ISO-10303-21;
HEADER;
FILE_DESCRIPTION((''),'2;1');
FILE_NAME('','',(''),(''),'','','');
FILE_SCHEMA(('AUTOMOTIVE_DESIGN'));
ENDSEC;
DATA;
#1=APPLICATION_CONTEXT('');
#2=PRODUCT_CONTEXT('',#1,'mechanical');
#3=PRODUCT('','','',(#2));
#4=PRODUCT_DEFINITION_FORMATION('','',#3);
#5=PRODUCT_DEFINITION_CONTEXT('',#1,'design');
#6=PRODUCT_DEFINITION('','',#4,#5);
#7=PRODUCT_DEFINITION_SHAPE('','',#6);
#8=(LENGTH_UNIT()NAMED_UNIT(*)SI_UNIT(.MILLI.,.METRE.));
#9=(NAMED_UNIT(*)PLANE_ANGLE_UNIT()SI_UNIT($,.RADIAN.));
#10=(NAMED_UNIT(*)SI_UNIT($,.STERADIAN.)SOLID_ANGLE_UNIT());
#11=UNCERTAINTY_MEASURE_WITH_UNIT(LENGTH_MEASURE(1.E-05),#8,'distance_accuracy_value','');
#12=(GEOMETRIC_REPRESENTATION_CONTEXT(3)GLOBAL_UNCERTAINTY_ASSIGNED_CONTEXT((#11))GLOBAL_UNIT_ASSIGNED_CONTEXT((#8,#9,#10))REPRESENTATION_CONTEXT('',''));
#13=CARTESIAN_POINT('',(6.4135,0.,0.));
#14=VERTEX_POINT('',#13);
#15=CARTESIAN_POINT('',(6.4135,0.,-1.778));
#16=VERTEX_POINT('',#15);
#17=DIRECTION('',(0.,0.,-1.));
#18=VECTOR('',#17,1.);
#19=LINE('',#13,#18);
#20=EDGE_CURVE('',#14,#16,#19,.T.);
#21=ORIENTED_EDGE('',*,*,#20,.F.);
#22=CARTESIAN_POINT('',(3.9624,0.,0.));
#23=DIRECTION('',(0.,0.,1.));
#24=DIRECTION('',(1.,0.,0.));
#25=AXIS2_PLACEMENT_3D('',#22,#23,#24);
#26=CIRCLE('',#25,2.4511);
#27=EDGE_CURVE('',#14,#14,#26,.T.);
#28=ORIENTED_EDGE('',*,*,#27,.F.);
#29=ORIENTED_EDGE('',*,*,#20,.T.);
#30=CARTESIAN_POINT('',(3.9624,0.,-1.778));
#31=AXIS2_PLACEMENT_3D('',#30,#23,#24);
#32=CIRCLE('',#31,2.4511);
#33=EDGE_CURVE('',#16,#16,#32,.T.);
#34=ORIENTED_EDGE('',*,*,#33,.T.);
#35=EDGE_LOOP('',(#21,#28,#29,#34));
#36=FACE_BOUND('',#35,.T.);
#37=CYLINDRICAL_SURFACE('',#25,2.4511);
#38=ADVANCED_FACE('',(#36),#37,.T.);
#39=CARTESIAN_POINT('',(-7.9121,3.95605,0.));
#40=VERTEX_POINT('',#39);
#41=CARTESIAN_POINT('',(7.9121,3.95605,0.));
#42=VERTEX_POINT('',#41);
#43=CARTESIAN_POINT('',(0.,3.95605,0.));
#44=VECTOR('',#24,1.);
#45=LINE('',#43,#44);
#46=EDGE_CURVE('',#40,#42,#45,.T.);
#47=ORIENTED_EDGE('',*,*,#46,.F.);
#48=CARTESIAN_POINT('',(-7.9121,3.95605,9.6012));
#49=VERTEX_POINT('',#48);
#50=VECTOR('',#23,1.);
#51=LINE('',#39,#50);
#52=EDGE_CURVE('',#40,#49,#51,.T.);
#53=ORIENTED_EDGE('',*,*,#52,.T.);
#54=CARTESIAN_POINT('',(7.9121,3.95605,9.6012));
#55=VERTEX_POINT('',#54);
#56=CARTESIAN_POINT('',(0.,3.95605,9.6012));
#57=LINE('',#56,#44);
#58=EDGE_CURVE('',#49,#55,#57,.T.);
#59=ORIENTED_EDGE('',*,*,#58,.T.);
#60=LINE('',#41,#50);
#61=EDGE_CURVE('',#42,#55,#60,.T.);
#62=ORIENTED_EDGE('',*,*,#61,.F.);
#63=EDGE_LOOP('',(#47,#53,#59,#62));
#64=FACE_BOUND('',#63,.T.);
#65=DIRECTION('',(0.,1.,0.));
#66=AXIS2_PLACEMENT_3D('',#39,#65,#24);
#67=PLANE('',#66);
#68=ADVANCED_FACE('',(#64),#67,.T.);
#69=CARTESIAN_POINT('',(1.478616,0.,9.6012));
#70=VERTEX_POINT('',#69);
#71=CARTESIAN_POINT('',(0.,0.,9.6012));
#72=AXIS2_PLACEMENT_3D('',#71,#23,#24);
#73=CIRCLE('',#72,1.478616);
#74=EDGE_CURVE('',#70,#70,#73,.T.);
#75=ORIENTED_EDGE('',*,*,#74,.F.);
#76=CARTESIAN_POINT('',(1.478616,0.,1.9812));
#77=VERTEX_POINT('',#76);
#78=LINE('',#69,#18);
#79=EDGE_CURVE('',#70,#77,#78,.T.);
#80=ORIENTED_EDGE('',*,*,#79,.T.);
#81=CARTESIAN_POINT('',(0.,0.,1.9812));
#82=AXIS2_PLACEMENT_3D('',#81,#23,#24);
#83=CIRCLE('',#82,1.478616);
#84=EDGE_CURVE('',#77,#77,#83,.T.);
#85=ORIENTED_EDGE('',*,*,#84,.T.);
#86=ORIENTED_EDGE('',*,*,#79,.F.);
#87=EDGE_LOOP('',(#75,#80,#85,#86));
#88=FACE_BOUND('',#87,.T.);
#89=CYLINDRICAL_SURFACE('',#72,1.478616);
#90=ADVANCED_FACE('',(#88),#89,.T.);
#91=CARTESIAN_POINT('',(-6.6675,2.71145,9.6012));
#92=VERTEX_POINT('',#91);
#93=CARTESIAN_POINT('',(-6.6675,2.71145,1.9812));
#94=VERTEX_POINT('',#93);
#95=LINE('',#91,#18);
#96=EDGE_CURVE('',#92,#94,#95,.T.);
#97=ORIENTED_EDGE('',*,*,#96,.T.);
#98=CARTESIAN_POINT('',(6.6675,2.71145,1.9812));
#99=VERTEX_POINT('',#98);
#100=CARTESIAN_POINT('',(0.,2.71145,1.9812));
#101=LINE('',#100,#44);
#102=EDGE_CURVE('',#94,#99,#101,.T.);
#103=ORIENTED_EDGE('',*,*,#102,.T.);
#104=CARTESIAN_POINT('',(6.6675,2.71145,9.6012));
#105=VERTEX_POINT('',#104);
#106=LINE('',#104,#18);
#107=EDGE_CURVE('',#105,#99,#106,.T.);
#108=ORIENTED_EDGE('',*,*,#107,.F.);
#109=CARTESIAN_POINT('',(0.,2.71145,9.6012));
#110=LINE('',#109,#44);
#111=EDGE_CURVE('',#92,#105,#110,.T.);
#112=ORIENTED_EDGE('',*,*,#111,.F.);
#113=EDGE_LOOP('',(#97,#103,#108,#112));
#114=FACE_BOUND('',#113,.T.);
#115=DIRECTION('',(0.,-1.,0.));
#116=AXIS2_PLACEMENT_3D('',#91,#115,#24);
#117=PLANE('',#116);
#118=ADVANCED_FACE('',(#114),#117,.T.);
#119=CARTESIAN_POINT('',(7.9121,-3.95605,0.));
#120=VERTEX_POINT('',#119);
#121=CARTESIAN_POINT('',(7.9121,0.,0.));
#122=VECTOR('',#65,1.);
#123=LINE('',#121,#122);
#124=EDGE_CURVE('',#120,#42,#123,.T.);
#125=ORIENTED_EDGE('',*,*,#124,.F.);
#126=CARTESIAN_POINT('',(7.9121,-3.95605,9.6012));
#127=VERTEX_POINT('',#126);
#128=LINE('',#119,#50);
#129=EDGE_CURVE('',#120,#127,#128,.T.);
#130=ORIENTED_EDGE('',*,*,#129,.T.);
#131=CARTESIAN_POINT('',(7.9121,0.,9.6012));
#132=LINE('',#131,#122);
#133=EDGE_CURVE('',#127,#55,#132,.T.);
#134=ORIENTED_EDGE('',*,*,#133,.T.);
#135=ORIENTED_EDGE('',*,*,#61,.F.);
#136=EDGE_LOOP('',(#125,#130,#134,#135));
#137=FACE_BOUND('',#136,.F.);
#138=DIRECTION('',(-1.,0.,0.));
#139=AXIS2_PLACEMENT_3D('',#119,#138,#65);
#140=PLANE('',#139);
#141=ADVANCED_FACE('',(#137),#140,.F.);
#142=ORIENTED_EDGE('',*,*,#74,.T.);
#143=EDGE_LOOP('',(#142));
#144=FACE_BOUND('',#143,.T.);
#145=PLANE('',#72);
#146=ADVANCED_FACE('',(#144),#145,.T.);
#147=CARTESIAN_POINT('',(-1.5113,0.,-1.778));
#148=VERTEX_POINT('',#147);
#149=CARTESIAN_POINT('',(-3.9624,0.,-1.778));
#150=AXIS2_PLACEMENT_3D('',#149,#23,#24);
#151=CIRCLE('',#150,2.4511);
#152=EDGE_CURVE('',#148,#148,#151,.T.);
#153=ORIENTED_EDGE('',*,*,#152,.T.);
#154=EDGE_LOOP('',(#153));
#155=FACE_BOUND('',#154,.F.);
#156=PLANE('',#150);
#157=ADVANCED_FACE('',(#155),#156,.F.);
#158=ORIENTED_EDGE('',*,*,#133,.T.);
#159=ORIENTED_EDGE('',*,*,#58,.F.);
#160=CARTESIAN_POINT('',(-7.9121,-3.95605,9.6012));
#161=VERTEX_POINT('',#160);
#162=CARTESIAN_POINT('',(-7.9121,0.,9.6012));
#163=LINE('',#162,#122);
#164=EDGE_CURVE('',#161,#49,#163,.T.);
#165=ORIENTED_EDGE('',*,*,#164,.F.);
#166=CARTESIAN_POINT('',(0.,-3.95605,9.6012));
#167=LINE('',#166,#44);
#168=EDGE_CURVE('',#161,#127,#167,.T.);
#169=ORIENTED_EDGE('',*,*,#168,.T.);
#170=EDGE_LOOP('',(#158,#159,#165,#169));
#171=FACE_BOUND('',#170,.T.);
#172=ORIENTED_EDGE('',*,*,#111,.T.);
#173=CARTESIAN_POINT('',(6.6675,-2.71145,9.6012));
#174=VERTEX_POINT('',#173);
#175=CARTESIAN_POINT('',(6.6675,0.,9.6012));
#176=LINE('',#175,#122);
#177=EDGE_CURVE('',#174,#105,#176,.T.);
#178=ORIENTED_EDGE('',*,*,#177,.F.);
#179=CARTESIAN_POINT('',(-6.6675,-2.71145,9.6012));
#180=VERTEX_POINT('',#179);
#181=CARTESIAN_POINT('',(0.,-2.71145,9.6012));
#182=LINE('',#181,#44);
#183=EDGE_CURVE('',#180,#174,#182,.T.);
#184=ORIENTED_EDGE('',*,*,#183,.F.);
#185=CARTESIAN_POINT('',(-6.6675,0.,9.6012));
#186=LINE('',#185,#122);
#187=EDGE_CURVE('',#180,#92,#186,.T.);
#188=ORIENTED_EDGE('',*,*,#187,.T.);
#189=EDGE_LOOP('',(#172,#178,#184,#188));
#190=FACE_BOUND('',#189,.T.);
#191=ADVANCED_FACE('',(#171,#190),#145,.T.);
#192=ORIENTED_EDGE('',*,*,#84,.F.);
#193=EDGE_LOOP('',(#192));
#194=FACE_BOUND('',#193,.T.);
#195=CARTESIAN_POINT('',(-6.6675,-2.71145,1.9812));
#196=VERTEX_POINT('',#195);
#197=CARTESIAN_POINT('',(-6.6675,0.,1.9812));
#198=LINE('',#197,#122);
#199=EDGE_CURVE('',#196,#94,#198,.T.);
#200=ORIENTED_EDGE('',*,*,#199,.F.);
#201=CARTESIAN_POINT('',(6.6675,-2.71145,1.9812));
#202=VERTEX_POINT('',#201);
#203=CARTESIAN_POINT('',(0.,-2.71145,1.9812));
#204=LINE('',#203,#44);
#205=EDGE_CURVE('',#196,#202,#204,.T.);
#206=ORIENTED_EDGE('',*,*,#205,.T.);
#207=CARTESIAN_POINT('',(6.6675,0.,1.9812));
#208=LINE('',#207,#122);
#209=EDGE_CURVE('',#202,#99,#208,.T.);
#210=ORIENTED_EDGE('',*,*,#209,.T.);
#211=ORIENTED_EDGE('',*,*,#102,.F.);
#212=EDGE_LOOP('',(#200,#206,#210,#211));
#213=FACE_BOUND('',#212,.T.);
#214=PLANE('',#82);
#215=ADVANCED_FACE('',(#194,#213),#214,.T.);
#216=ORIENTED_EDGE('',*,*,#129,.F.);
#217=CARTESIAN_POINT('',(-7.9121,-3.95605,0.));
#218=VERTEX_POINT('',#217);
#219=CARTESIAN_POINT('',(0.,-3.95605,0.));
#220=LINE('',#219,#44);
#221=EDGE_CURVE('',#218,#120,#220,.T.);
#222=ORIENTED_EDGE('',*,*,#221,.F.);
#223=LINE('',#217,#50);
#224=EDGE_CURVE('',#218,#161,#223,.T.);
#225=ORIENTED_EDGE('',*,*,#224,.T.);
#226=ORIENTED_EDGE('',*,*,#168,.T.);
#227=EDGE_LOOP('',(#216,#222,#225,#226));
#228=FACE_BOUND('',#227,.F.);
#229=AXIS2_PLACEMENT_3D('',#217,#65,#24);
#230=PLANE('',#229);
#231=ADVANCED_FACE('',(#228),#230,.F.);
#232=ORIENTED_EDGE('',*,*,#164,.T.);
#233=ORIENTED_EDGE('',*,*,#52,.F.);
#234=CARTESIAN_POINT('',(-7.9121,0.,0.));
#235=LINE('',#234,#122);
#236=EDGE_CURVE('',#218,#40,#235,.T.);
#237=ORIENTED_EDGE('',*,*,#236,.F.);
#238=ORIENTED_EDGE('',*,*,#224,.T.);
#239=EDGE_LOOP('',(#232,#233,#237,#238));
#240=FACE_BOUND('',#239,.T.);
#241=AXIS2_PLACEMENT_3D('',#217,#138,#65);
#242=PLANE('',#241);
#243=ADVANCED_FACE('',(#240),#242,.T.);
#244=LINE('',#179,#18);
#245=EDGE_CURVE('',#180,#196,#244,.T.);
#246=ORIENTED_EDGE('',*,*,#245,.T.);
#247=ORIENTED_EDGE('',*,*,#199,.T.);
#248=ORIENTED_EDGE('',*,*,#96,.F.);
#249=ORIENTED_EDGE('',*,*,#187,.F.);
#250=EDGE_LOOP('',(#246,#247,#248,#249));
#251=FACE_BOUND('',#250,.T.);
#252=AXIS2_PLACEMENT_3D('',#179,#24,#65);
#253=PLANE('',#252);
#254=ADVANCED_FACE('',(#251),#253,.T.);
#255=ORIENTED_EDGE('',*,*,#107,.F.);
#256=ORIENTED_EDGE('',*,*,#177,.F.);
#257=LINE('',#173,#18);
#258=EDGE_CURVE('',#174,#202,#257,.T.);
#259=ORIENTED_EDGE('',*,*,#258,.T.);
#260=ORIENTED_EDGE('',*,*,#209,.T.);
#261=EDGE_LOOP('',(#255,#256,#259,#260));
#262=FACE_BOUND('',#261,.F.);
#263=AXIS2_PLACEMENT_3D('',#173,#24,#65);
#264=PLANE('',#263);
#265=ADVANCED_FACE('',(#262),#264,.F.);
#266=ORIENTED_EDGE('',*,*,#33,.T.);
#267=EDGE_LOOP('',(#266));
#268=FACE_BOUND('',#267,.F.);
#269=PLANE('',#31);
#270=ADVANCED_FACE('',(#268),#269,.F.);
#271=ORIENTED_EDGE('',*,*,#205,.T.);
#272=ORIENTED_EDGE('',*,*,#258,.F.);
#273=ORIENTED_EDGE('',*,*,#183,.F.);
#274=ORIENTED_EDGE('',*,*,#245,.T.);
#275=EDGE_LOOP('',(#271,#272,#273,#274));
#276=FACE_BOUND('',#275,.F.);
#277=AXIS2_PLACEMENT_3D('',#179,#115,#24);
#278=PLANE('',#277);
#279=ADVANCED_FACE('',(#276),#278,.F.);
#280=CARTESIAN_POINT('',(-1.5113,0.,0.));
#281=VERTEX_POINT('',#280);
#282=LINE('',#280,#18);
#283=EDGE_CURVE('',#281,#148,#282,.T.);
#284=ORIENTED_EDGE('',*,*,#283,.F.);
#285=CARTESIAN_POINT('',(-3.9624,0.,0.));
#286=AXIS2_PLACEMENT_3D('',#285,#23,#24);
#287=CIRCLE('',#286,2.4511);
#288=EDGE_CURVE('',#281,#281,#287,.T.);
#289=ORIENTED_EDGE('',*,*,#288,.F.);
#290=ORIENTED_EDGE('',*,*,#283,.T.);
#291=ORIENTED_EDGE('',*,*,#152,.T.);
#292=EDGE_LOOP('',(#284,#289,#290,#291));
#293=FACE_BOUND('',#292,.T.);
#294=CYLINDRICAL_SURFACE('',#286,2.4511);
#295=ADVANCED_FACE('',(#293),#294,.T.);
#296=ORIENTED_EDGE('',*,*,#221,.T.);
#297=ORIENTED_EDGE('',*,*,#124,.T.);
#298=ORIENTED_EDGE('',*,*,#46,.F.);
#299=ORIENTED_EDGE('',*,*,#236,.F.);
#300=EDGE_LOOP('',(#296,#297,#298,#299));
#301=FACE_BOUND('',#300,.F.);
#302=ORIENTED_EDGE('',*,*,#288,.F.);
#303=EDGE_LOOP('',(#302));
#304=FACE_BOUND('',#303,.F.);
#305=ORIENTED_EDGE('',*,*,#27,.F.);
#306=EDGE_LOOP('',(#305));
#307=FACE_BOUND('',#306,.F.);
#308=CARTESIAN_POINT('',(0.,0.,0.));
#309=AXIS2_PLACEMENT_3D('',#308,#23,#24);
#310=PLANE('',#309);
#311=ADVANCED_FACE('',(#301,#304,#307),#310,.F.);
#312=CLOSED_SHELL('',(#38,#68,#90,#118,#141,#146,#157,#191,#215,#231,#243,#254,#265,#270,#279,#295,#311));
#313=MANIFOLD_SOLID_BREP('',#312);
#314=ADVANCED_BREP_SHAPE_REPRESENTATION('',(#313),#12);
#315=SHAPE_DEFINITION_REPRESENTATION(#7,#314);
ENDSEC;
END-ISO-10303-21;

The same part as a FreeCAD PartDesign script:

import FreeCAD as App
import Part
import Sketcher

V = App.Vector
Q = App.Units.Quantity


def add_polygon(sketch, points):
    """Adds a closed chain of lines whose ends are joined by coincident constraints."""
    first, n = sketch.GeometryCount, len(points)
    for a, b in zip(points, points[1:] + points[:1]):
        sketch.addGeometry(Part.LineSegment(App.Vector(*a, 0), App.Vector(*b, 0)), False)
    for i in range(n):
        sketch.addConstraint(Sketcher.Constraint("Coincident", first + i, 2, first + (i + 1) % n, 1))

doc = App.newDocument("Part")
body = doc.addObject("PartDesign::Body", "Body")

sketch1 = body.newObject("Sketcher::SketchObject", "Sketch")
sketch1.AttachmentSupport = (doc.getObject("XY_Plane"), [""])
sketch1.MapMode = "FlatFace"
add_polygon(sketch1, [(-8, 4), (-8, -4), (8, -4), (8, 4)])
sketch1.addConstraint([
    Sketcher.Constraint("Vertical", 0),
    Sketcher.Constraint("Horizontal", 1),
    Sketcher.Constraint("Vertical", 2),
    Sketcher.Constraint("Horizontal", 3),
    Sketcher.Constraint("Symmetric", 0, 2, 2, 2, -1, 1),
    Sketcher.Constraint("DistanceX", 1, 1, 1, 2, Q("0.623 in")),
    Sketcher.Constraint("DistanceY", 0, 2, 0, 1, Q("0.3115 in")),
])
pad1 = body.newObject("PartDesign::Pad", "Pad")
pad1.Profile = sketch1
pad1.Length = Q("0.378 in")

sketch2 = body.newObject("Sketcher::SketchObject", "Sketch001")
sketch2.AttachmentSupport = (doc.getObject("XY_Plane"), [""])
sketch2.MapMode = "FlatFace"
sketch2.addGeometry([
    Part.Circle(V(-4, 0, 0), V(0, 0, 1), 2.5),
    Part.Circle(V(4, 0, 0), V(0, 0, 1), 2.5),
], False)
sketch2.addConstraint([
    Sketcher.Constraint("Equal", 0, 1),
    Sketcher.Constraint("Symmetric", 0, 3, 1, 3, -1, 1),
    Sketcher.Constraint("PointOnObject", 0, 3, -1),
    Sketcher.Constraint("Diameter", 0, Q("0.193 in")),
    Sketcher.Constraint("DistanceX", 0, 3, -1, 1, Q("0.156 in")),
])
pad2 = body.newObject("PartDesign::Pad", "Pad001")
pad2.Profile = sketch2
pad2.Length = Q("0.07 in")
pad2.Reversed = True

sketch3 = body.newObject("Sketcher::SketchObject", "Sketch002")
sketch3.AttachmentSupport = (doc.getObject("XY_Plane"), [""])
sketch3.MapMode = "FlatFace"
sketch3.AttachmentOffset = App.Placement(V(0, 0, 0.378 * 25.4), App.Rotation())
add_polygon(sketch3, [(-7, 3), (-7, -3), (7, -3), (7, 3)])
sketch3.addConstraint([
    Sketcher.Constraint("Vertical", 0),
    Sketcher.Constraint("Horizontal", 1),
    Sketcher.Constraint("Vertical", 2),
    Sketcher.Constraint("Horizontal", 3),
    Sketcher.Constraint("Symmetric", 0, 2, 2, 2, -1, 1),
    Sketcher.Constraint("DistanceX", 1, 1, 1, 2, Q("0.525 in")),
    Sketcher.Constraint("DistanceY", 0, 2, 0, 1, Q("0.2135 in")),
])
pocket1 = body.newObject("PartDesign::Pocket", "Pocket")
pocket1.Profile = sketch3
pocket1.Length = Q("0.3 in")

sketch4 = body.newObject("Sketcher::SketchObject", "Sketch003")
sketch4.AttachmentSupport = (doc.getObject("XY_Plane"), [""])
sketch4.MapMode = "FlatFace"
sketch4.AttachmentOffset = App.Placement(V(0, 0, 0.378 * 25.4), App.Rotation())
sketch4.addGeometry(Part.Circle(V(0, 0, 0), V(0, 0, 1), 1.5), False)
sketch4.addConstraint([
    Sketcher.Constraint("Coincident", 0, 3, -1, 1),
    Sketcher.Constraint("Diameter", 0, 2.957232),
])
pad3 = body.newObject("PartDesign::Pad", "Pad002")
pad3.Profile = sketch4
pad3.Length = Q("0.32 in")
pad3.Reversed = True

doc.recompute()
